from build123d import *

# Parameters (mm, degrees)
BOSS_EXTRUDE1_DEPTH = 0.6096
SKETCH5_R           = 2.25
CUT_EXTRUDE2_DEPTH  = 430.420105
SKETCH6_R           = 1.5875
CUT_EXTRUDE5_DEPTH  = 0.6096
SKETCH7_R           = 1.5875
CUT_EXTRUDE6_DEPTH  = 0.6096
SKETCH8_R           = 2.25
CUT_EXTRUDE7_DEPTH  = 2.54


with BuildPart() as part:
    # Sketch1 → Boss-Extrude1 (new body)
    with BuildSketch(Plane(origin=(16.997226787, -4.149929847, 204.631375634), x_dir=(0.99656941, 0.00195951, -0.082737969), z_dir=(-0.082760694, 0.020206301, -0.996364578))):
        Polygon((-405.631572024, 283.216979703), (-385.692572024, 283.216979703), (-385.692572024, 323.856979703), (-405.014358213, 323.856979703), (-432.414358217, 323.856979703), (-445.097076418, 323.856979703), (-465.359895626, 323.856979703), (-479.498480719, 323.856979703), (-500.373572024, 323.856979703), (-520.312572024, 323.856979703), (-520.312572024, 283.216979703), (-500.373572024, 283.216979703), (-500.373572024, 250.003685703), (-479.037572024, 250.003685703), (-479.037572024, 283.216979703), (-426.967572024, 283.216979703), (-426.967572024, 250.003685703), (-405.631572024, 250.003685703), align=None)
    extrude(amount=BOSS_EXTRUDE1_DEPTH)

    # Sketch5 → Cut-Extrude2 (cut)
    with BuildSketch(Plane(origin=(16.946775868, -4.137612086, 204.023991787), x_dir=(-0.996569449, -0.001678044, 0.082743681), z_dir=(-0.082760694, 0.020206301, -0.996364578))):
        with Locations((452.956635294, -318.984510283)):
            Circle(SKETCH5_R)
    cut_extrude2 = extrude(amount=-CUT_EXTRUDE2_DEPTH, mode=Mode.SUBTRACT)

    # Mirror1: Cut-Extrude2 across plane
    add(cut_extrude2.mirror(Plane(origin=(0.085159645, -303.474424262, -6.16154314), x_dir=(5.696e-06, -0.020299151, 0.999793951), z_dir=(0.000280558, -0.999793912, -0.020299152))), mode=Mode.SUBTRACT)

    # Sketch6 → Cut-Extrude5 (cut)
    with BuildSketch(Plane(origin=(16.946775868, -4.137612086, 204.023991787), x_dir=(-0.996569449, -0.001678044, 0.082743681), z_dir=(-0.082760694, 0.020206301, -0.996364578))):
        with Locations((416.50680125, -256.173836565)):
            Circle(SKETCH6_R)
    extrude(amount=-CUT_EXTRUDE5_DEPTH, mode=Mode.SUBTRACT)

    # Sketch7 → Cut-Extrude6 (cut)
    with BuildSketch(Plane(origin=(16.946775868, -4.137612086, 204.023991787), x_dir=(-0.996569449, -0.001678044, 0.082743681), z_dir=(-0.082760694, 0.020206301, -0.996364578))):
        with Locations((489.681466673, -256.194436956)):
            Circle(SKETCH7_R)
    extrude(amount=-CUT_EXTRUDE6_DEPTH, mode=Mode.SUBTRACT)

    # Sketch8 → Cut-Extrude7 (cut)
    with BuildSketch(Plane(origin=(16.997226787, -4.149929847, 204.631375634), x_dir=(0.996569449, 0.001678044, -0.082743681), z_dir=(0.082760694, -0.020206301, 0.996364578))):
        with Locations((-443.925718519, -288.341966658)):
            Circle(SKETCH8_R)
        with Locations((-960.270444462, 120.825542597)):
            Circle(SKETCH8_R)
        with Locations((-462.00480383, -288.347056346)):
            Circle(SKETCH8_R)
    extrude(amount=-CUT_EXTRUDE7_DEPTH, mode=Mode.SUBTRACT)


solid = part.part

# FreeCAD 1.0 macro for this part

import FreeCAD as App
import Part
import Sketcher
Q = App.Units.Quantity

doc = App.newDocument("Part")
body = doc.addObject("PartDesign::Body", "Body")

sketch1 = body.newObject("Sketcher::SketchObject", "Sketch")
sketch1.Placement = App.Placement(App.Vector(16.997227, -4.14993, 204.631376), App.Rotation(App.Vector(0.99656941, 0.00195951, -0.082737969), App.Vector(0.000280558, -0.999793911, -0.020299152), App.Vector(-0.082760694, 0.020206301, -0.996364578), "ZXY"))
sketch1.addGeometry([
    Part.LineSegment(App.Vector(-405.631572, 283.21698, 0), App.Vector(-385.692572, 283.21698, 0)),
    Part.LineSegment(App.Vector(-385.692572, 283.21698, 0), App.Vector(-385.692572, 323.85698, 0)),
    Part.LineSegment(App.Vector(-385.692572, 323.85698, 0), App.Vector(-520.312572, 323.85698, 0)),
    Part.LineSegment(App.Vector(-520.312572, 323.85698, 0), App.Vector(-520.312572, 283.21698, 0)),
    Part.LineSegment(App.Vector(-520.312572, 283.21698, 0), App.Vector(-500.373572, 283.21698, 0)),
    Part.LineSegment(App.Vector(-500.373572, 283.21698, 0), App.Vector(-500.373572, 250.003686, 0)),
    Part.LineSegment(App.Vector(-500.373572, 250.003686, 0), App.Vector(-479.037572, 250.003686, 0)),
    Part.LineSegment(App.Vector(-479.037572, 250.003686, 0), App.Vector(-479.037572, 283.21698, 0)),
    Part.LineSegment(App.Vector(-479.037572, 283.21698, 0), App.Vector(-426.967572, 283.21698, 0)),
    Part.LineSegment(App.Vector(-426.967572, 283.21698, 0), App.Vector(-426.967572, 250.003686, 0)),
    Part.LineSegment(App.Vector(-426.967572, 250.003686, 0), App.Vector(-405.631572, 250.003686, 0)),
    Part.LineSegment(App.Vector(-405.631572, 250.003686, 0), App.Vector(-405.631572, 283.21698, 0)),
], False)
sketch1.addConstraint([
    Sketcher.Constraint("Coincident", 0, 2, 1, 1),
    Sketcher.Constraint("Coincident", 1, 2, 2, 1),
    Sketcher.Constraint("Coincident", 2, 2, 3, 1),
    Sketcher.Constraint("Coincident", 3, 2, 4, 1),
    Sketcher.Constraint("Coincident", 4, 2, 5, 1),
    Sketcher.Constraint("Coincident", 5, 2, 6, 1),
    Sketcher.Constraint("Coincident", 6, 2, 7, 1),
    Sketcher.Constraint("Coincident", 7, 2, 8, 1),
    Sketcher.Constraint("Coincident", 8, 2, 9, 1),
    Sketcher.Constraint("Coincident", 9, 2, 10, 1),
    Sketcher.Constraint("Coincident", 10, 2, 11, 1),
    Sketcher.Constraint("Coincident", 11, 2, 0, 1),
    Sketcher.Constraint("Horizontal", 0),
    Sketcher.Constraint("Vertical", 1),
    Sketcher.Constraint("Horizontal", 2),
    Sketcher.Constraint("Vertical", 3),
    Sketcher.Constraint("Horizontal", 4),
    Sketcher.Constraint("Vertical", 5),
    Sketcher.Constraint("Horizontal", 6),
    Sketcher.Constraint("Vertical", 7),
    Sketcher.Constraint("Horizontal", 8),
    Sketcher.Constraint("Vertical", 9),
    Sketcher.Constraint("Horizontal", 10),
    Sketcher.Constraint("Vertical", 11),
    Sketcher.Constraint("Horizontal", 0, 2, 3, 2),
    Sketcher.Constraint("Horizontal", 4, 2, 7, 2),
    Sketcher.Constraint("Horizontal", 6, 2, 9, 2),
    Sketcher.Constraint("Equal", 0, 4),
    Sketcher.Constraint("Equal", 6, 10),
    Sketcher.Constraint("DistanceX", 2, 2, 2, 1, Q("5.3 in")),
    Sketcher.Constraint("DistanceY", 1, 1, 1, 2, Q("1.6 in")),
    Sketcher.Constraint("DistanceX", 6, 1, 6, 2, Q("0.84 in")),
    Sketcher.Constraint("DistanceX", 8, 1, 8, 2, Q("2.05 in")),
    Sketcher.Constraint("DistanceY", 5, 2, 5, 1, 33.213294),
    Sketcher.Constraint("DistanceY", -1, 1, 0, 2, 283.21698),
    Sketcher.Constraint("DistanceX", 0, 2, -1, 1, 385.692572),
])
pad1 = body.newObject("PartDesign::Pad", "Pad")
pad1.Profile = sketch1
pad1.Length = Q("0.024 in")

sketch2 = body.newObject("Sketcher::SketchObject", "Sketch001")
sketch2.Placement = App.Placement(App.Vector(16.946776, -4.137612, 204.023992), App.Rotation(App.Vector(-0.996569449, -0.001678044, 0.08274368), App.Vector(0, 0.999794423, 0.020275858), App.Vector(-0.082760694, 0.020206301, -0.996364578), "ZXY"))
sketch2.addGeometry(Part.Circle(App.Vector(452.956635, -318.98451, 0), App.Vector(0, 0, 1), 2.25), False)
sketch2.addConstraint([
    Sketcher.Constraint("Diameter", 0, 4.5),
    Sketcher.Constraint("DistanceY", 0, 3, -1, 1, 318.98451),
    Sketcher.Constraint("DistanceX", -1, 1, 0, 3, 452.956635),
])
pocket1 = body.newObject("PartDesign::Pocket", "Pocket")
pocket1.Profile = sketch2
pocket1.Length = 430.420105
doc.recompute()

datumplane = body.newObject("PartDesign::Plane", "DatumPlane")
datumplane.Placement = App.Placement(App.Vector(0.08516, -303.474424, -6.161543), App.Rotation(App.Vector(0, -0.020299153, 0.999793951), App.Vector(-0.999999961, -0.0002805, -0.000005695), App.Vector(0.000280558, -0.999793912, -0.020299152), "ZXY"))
mirrored = body.newObject("PartDesign::Mirrored", "Mirrored")
mirrored.Originals = [pocket1]
mirrored.MirrorPlane = (datumplane, [""])
body.Tip = mirrored

sketch3 = body.newObject("Sketcher::SketchObject", "Sketch002")
sketch3.Placement = App.Placement(App.Vector(16.946776, -4.137612, 204.023992), App.Rotation(App.Vector(-0.996569449, -0.001678044, 0.08274368), App.Vector(0, 0.999794423, 0.020275858), App.Vector(-0.082760694, 0.020206301, -0.996364578), "ZXY"))
sketch3.addGeometry(Part.Circle(App.Vector(416.506801, -256.173836, 0), App.Vector(0, 0, 1), 1.5875), False)
sketch3.addConstraint([
    Sketcher.Constraint("Diameter", 0, Q("0.125 in")),
    Sketcher.Constraint("DistanceX", -1, 1, 0, 3, 416.506801),
    Sketcher.Constraint("DistanceY", 0, 3, -1, 1, 256.173836),
])
pocket2 = body.newObject("PartDesign::Pocket", "Pocket001")
pocket2.Profile = sketch3
pocket2.Length = Q("0.024 in")

sketch4 = body.newObject("Sketcher::SketchObject", "Sketch003")
sketch4.Placement = App.Placement(App.Vector(16.946776, -4.137612, 204.023992), App.Rotation(App.Vector(-0.996569449, -0.001678044, 0.08274368), App.Vector(0, 0.999794423, 0.020275858), App.Vector(-0.082760694, 0.020206301, -0.996364578), "ZXY"))
sketch4.addGeometry(Part.Circle(App.Vector(489.681466, -256.194437, 0), App.Vector(0, 0, 1), 1.5875), False)
sketch4.addConstraint([
    Sketcher.Constraint("Diameter", 0, Q("0.125 in")),
    Sketcher.Constraint("DistanceX", -1, 1, 0, 3, 489.681466),
    Sketcher.Constraint("DistanceY", 0, 3, -1, 1, 256.194437),
])
pocket3 = body.newObject("PartDesign::Pocket", "Pocket002")
pocket3.Profile = sketch4
pocket3.Length = Q("0.024 in")

sketch5 = body.newObject("Sketcher::SketchObject", "Sketch004")
sketch5.Placement = App.Placement(App.Vector(16.997227, -4.14993, 204.631376), App.Rotation(App.Vector(0.996569449, 0.001678044, -0.08274368), App.Vector(0, 0.999794423, 0.020275858), App.Vector(0.082760694, -0.020206301, 0.996364578), "ZXY"))
sketch5.addGeometry([
    Part.Circle(App.Vector(-443.925718, -288.341966, 0), App.Vector(0, 0, 1), 2.25),
    Part.Circle(App.Vector(-960.270444, 120.825542, 0), App.Vector(0, 0, 1), 2.25),
    Part.Circle(App.Vector(-462.004803, -288.347056, 0), App.Vector(0, 0, 1), 2.25),
], False)
sketch5.addConstraint([
    Sketcher.Constraint("Equal", 0, 1),
    Sketcher.Constraint("Equal", 1, 2),
    Sketcher.Constraint("Diameter", 0, 4.5),
    Sketcher.Constraint("DistanceY", 2, 3, 1, 3, 409.172598),
    Sketcher.Constraint("DistanceX", 0, 3, -1, 1, 443.925718),
    Sketcher.Constraint("DistanceY", 0, 3, 1, 3, 409.167509),
    Sketcher.Constraint("DistanceX", 1, 3, 2, 3, 498.26564),
    Sketcher.Constraint("DistanceY", 0, 3, -1, 1, 288.341966),
    Sketcher.Constraint("DistanceX", 1, 3, -1, 1, 960.270444),
])
pocket4 = body.newObject("PartDesign::Pocket", "Pocket003")
pocket4.Profile = sketch5
pocket4.Length = Q("0.1 in")

doc.recompute()
